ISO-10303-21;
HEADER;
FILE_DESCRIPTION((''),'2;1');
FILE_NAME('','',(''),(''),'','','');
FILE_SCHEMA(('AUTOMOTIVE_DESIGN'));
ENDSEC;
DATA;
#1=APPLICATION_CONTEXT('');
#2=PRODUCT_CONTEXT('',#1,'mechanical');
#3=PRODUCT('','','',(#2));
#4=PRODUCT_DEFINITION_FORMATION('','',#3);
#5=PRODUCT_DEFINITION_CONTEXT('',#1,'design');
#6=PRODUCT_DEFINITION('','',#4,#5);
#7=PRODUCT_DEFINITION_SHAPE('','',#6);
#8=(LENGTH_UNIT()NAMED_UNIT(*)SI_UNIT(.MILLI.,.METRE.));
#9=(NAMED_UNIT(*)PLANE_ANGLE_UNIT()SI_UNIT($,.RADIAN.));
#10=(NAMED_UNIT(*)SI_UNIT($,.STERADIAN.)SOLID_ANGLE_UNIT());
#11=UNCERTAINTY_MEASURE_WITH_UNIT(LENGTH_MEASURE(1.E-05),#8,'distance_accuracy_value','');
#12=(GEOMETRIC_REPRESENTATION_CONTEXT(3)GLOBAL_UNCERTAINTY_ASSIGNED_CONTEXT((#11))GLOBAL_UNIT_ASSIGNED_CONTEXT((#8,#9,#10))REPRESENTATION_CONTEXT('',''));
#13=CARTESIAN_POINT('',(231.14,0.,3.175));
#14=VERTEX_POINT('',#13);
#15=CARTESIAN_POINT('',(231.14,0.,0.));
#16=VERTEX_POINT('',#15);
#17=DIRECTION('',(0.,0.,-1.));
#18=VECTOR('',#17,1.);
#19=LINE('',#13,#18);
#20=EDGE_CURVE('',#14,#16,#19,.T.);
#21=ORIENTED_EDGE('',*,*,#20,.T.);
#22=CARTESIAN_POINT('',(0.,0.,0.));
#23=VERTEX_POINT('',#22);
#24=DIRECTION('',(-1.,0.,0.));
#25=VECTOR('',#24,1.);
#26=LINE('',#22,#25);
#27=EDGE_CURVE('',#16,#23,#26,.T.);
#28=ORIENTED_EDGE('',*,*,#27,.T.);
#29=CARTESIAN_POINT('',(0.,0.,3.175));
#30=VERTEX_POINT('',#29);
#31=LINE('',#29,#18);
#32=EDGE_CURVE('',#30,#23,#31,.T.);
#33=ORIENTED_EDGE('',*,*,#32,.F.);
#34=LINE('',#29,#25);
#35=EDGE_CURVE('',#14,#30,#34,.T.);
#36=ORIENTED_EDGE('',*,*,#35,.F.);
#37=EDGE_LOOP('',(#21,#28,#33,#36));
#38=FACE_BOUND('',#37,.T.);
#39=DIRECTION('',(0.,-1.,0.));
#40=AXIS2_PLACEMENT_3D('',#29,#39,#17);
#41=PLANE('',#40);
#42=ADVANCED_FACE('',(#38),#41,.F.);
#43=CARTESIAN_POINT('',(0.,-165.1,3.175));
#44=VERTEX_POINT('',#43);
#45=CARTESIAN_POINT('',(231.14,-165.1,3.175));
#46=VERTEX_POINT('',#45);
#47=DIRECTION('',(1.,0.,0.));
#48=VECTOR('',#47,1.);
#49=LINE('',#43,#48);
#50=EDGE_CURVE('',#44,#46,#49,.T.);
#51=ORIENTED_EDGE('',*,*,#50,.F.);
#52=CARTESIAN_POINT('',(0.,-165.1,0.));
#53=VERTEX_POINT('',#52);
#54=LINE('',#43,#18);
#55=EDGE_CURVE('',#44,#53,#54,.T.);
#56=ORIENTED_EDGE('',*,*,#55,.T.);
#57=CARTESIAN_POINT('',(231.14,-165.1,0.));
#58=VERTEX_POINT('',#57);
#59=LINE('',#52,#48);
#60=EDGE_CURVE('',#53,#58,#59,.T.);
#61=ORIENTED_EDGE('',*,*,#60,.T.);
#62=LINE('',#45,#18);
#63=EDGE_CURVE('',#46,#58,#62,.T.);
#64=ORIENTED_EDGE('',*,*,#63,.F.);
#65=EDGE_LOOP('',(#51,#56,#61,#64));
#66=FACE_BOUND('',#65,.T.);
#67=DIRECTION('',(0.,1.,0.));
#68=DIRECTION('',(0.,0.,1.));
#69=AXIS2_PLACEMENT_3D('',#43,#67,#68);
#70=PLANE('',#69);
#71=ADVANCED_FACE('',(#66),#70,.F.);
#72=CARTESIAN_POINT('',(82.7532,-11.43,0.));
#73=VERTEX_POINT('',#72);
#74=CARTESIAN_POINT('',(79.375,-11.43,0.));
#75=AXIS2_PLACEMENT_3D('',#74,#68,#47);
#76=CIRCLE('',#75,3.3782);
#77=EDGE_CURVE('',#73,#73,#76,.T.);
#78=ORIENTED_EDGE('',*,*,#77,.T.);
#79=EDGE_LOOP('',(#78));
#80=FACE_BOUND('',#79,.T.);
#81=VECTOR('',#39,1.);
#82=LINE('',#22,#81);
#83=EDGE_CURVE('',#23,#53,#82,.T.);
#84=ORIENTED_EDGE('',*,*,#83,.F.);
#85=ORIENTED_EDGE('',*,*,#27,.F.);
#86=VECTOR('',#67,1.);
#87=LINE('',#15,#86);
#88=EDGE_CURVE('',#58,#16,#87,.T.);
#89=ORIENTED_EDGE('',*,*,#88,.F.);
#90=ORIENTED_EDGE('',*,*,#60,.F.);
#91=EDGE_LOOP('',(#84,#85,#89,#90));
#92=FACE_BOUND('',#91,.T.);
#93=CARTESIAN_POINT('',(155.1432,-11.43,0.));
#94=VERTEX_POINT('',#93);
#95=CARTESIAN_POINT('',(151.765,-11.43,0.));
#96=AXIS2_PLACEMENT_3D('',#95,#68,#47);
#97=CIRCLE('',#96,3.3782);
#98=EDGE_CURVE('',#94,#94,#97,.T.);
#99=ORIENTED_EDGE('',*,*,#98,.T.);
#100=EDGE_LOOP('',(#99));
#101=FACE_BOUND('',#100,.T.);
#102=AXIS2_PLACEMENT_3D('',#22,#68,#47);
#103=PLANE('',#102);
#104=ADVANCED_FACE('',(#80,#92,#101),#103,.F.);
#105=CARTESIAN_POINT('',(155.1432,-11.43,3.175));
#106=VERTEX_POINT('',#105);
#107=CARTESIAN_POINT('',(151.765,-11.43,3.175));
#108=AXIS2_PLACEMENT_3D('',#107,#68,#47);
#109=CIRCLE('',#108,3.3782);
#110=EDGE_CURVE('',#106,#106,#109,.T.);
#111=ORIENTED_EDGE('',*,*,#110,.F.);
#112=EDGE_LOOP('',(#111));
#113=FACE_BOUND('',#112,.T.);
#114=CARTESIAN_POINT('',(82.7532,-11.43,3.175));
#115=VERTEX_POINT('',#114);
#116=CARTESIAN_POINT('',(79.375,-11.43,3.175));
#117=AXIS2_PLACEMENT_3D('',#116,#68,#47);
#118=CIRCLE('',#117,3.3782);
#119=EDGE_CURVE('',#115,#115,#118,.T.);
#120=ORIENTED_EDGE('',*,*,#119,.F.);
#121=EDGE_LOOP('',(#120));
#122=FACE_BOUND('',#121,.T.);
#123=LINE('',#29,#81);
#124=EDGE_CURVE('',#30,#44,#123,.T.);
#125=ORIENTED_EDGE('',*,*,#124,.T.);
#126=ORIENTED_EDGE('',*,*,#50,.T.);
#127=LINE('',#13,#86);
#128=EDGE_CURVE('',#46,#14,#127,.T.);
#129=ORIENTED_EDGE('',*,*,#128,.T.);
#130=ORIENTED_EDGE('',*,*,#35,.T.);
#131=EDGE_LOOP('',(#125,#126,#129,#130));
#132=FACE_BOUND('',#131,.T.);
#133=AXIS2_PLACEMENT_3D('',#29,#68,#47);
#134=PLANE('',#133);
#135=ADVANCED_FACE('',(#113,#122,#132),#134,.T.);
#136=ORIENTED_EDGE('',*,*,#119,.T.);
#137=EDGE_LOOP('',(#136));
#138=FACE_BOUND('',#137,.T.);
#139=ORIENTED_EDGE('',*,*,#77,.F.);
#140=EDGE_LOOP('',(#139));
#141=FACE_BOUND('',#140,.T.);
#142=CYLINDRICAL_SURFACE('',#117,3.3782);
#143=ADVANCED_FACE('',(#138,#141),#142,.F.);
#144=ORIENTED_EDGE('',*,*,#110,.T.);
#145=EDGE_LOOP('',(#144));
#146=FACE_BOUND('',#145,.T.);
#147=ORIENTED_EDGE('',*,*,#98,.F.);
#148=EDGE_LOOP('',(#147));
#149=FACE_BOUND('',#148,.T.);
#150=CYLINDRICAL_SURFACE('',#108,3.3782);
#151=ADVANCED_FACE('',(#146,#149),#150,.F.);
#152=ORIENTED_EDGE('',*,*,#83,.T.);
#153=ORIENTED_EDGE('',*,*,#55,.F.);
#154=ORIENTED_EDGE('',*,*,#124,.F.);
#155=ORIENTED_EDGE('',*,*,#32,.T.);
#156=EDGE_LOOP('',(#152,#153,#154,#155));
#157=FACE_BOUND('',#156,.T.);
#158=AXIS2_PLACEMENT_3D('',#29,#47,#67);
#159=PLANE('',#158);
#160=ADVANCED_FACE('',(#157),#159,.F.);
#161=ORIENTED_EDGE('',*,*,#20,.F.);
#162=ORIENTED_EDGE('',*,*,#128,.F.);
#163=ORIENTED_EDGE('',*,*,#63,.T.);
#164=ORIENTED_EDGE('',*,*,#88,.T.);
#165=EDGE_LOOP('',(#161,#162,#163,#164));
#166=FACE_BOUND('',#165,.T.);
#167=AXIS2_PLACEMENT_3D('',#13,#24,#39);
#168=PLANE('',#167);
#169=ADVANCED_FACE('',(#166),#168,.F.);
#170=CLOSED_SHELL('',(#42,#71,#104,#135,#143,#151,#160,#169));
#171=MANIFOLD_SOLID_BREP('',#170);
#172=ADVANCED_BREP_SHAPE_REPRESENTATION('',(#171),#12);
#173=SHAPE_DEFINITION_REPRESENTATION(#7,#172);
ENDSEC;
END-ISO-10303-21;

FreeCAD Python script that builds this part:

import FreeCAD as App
import Part
import Sketcher

V = App.Vector
Q = App.Units.Quantity

doc = App.newDocument("Part")
params = doc.addObject("Spreadsheet::Sheet", "Params")
for row, (alias, value) in enumerate([
    ("sketch1_width", "9.1 in"),
    ("sketch1_height", "6.5 in"),
    ("pad1_length", "0.125 in"),
    ("sketch2_diameter", "0.266 in"),
    ("hole_diameter", "0.266 in"),
], start=1):
    params.set(f"A{row}", alias)
    params.set(f"B{row}", "=" + value)
    params.setAlias(f"B{row}", alias)

body = doc.addObject("PartDesign::Body", "Body")

# Sketch on XY plane
sketch1 = body.newObject("Sketcher::SketchObject", "Sketch")
sketch1.AttachmentSupport = (doc.getObject("XY_Plane"), [""])
sketch1.MapMode = "FlatFace"
sketch1.addGeometry([
    Part.LineSegment(V(0, 0, 0), V(0, -165, 0)),
    Part.LineSegment(V(0, -165, 0), V(231, -165, 0)),
    Part.LineSegment(V(231, -165, 0), V(231, 0, 0)),
    Part.LineSegment(V(231, 0, 0), V(0, 0, 0)),
], False)
sketch1.addConstraint([
    Sketcher.Constraint("Coincident", 0, 2, 1, 1),
    Sketcher.Constraint("Coincident", 1, 2, 2, 1),
    Sketcher.Constraint("Coincident", 2, 2, 3, 1),
    Sketcher.Constraint("Coincident", 3, 2, 0, 1),
    Sketcher.Constraint("Vertical", 0),
    Sketcher.Constraint("Horizontal", 1),
    Sketcher.Constraint("Vertical", 2),
    Sketcher.Constraint("Horizontal", 3),
    Sketcher.Constraint("Coincident", 3, 2, -1, 1),
    Sketcher.Constraint("DistanceX", 1, 1, 1, 2, Q("9.1 in")),
    Sketcher.Constraint("DistanceY", 0, 2, 0, 1, Q("6.5 in")),
])
sketch1.setExpression("Constraints[9]", "Params.sketch1_width")
sketch1.setExpression("Constraints[10]", "Params.sketch1_height")
pad1 = body.newObject("PartDesign::Pad", "Pad")
pad1.Profile = sketch1
pad1.setExpression("Length", "Params.pad1_length")

# Sketch on XY plane
sketch2 = body.newObject("Sketcher::SketchObject", "Sketch001")
sketch2.AttachmentSupport = (doc.getObject("XY_Plane"), [""])
sketch2.MapMode = "FlatFace"
sketch2.AttachmentOffset = App.Placement(V(0, 0, 0.125 * 25.4), App.Rotation())
sketch2.addGeometry([
    Part.Circle(V(79.4, -11.4, 0), V(0, 0, 1), 3.4),
    Part.Circle(V(151.8, -11.4, 0), V(0, 0, 1), 3.4),
], False)
sketch2.addConstraint([
    Sketcher.Constraint("Equal", 0, 1),
    Sketcher.Constraint("Horizontal", 0, 3, 1, 3),
    Sketcher.Constraint("Diameter", 0, Q("0.266 in")),
    Sketcher.Constraint("DistanceY", 0, 3, -1, 1, Q("0.45 in")),
    Sketcher.Constraint("DistanceX", 0, 3, 1, 3, Q("2.85 in")),
    Sketcher.Constraint("DistanceX", -1, 1, 0, 3, Q("3.125 in")),
])
sketch2.setExpression("Constraints[2]", "Params.sketch2_diameter")
doc.recompute()
hole = body.newObject("PartDesign::Hole", "Hole")
hole.Profile = sketch2
hole.ThreadType = "None"
hole.setExpression("Diameter", "Params.hole_diameter")
hole.DepthType = "ThroughAll"

doc.recompute()
